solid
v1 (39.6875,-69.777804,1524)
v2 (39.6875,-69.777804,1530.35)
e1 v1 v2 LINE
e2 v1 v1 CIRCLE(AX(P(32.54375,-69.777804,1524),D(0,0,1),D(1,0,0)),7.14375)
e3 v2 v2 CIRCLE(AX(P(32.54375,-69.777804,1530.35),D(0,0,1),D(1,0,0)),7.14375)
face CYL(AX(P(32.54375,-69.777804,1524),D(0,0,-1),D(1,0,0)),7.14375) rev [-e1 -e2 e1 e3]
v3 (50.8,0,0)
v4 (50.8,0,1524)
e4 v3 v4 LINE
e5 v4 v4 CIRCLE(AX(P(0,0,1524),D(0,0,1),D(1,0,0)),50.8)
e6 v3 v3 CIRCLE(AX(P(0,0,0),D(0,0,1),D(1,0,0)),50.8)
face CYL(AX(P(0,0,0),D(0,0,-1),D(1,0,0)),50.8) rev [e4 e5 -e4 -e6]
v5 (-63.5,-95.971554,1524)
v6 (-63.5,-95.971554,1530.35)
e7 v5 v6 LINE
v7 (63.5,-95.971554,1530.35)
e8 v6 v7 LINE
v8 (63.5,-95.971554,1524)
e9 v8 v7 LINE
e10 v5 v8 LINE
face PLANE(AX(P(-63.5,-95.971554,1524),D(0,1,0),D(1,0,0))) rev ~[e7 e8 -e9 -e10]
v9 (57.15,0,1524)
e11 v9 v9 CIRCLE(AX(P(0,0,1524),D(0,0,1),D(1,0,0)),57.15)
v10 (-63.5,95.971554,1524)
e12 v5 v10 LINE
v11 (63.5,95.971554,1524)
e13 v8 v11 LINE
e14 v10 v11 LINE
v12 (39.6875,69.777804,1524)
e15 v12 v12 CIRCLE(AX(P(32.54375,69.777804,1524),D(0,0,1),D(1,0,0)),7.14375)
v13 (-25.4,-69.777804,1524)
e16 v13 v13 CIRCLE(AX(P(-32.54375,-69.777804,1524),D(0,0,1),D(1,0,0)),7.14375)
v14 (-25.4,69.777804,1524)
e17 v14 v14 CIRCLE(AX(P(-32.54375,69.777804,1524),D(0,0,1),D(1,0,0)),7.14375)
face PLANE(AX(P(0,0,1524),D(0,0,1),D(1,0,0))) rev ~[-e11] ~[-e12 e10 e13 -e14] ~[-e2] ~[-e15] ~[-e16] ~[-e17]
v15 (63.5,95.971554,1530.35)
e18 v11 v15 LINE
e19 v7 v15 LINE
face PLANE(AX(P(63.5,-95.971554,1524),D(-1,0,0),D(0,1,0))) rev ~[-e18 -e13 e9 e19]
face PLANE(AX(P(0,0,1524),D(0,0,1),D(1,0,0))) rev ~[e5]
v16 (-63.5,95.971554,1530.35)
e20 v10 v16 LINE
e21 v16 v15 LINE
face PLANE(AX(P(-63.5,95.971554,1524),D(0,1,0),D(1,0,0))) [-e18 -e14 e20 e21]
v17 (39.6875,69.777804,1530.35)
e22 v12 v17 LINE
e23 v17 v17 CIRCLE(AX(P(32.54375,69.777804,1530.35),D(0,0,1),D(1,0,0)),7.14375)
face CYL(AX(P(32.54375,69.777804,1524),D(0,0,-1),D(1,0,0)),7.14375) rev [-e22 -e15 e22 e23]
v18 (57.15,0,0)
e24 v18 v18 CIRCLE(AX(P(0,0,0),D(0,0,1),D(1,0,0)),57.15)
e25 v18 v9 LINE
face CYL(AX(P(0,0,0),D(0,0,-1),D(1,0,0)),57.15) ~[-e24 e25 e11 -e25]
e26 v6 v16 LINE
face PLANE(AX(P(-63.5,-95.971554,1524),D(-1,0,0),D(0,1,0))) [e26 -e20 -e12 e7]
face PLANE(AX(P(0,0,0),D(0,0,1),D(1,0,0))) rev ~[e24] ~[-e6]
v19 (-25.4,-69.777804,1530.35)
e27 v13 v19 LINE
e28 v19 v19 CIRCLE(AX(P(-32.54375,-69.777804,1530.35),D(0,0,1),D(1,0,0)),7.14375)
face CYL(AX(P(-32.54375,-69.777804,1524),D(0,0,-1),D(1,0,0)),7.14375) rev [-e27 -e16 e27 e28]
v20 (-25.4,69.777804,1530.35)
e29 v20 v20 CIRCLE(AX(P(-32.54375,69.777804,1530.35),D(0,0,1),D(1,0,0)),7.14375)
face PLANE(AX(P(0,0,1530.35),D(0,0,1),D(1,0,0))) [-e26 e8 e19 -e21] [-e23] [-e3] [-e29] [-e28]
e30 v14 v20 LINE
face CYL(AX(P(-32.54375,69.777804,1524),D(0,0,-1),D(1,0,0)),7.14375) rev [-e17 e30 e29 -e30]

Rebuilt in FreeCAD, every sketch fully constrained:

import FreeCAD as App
import Part
import Sketcher

V = App.Vector
Q = App.Units.Quantity

doc = App.newDocument("Part")
body = doc.addObject("PartDesign::Body", "Body")

# Sketch on XY plane
sketch1 = doc.addObject("Sketcher::SketchObject", "Sketch")
body.addObject(sketch1)
sketch1.AttachmentSupport = (doc.XY_Plane, [""])
sketch1.MapMode = "FlatFace"
sketch1.addGeometry([
    Part.Circle(V(0, 0, 0), V(0, 0, 1), 57),
    Part.Circle(V(0, 0, 0), V(0, 0, 1), 51),
], False)
sketch1.addConstraint([
    Sketcher.Constraint("Coincident", 0, 3, -1, 1),
    Sketcher.Constraint("Coincident", 1, 3, -1, 1),
    Sketcher.Constraint("Diameter", 1, Q("4 in")),
    Sketcher.Constraint("Diameter", 0, Q("4.5 in")),
])
pad1 = doc.addObject("PartDesign::Pad", "Pad")
body.addObject(pad1)
pad1.Profile = sketch1
pad1.Length = Q("60 in")

# Sketch on XY plane
sketch2 = doc.addObject("Sketcher::SketchObject", "Sketch001")
body.addObject(sketch2)
sketch2.AttachmentSupport = (doc.XY_Plane, [""])
sketch2.MapMode = "FlatFace"
sketch2.AttachmentOffset = App.Placement(V(0, 0, 60 * 25.4), App.Rotation())
sketch2.addGeometry([
    Part.LineSegment(V(-64, 96, 0), V(-64, -96, 0)),  # 0
    Part.LineSegment(V(-64, -96, 0), V(64, -96, 0)),  # 1
    Part.LineSegment(V(64, -96, 0), V(64, 96, 0)),  # 2
    Part.LineSegment(V(64, 96, 0), V(-64, 96, 0)),  # 3
    Part.Circle(V(-33, -70, 0), V(0, 0, 1), 7),  # 4
    Part.Circle(V(33, -70, 0), V(0, 0, 1), 7),  # 5
    Part.Circle(V(-33, 70, 0), V(0, 0, 1), 7),  # 6
    Part.Circle(V(33, 70, 0), V(0, 0, 1), 7),  # 7
], False)
sketch2.addConstraint([
    Sketcher.Constraint("Coincident", 0, 2, 1, 1),
    Sketcher.Constraint("Coincident", 1, 2, 2, 1),
    Sketcher.Constraint("Coincident", 2, 2, 3, 1),
    Sketcher.Constraint("Coincident", 3, 2, 0, 1),
    Sketcher.Constraint("Vertical", 0),
    Sketcher.Constraint("Horizontal", 1),
    Sketcher.Constraint("Vertical", 2),
    Sketcher.Constraint("Horizontal", 3),
    Sketcher.Constraint("Equal", 4, 5),
    Sketcher.Constraint("Equal", 5, 6),
    Sketcher.Constraint("Equal", 6, 7),
    Sketcher.Constraint("Symmetric", 5, 3, 6, 3, -1, 1),
    Sketcher.Constraint("Symmetric", 4, 3, 7, 3, -1, 1),
    Sketcher.Constraint("Symmetric", 0, 2, 2, 2, -1, 1),
    Sketcher.Constraint("Symmetric", 4, 3, 5, 3, -2),
    Sketcher.Constraint("DistanceX", 1, 1, 1, 2, Q("5 in")),
    Sketcher.Constraint("Diameter", 4, Q("0.5625 in")),
    Sketcher.Constraint("DistanceX", 4, 3, -1, 1, Q("1.28125 in")),
    Sketcher.Constraint("DistanceY", 0, 2, 4, 3, Q("1.03125 in")),
    Sketcher.Constraint("DistanceY", 0, 2, 0, 1, Q("191.943108 mm")),
])
pad2 = doc.addObject("PartDesign::Pad", "Pad001")
body.addObject(pad2)
pad2.Profile = sketch2
pad2.Length = Q("0.25 in")

doc.recompute()
